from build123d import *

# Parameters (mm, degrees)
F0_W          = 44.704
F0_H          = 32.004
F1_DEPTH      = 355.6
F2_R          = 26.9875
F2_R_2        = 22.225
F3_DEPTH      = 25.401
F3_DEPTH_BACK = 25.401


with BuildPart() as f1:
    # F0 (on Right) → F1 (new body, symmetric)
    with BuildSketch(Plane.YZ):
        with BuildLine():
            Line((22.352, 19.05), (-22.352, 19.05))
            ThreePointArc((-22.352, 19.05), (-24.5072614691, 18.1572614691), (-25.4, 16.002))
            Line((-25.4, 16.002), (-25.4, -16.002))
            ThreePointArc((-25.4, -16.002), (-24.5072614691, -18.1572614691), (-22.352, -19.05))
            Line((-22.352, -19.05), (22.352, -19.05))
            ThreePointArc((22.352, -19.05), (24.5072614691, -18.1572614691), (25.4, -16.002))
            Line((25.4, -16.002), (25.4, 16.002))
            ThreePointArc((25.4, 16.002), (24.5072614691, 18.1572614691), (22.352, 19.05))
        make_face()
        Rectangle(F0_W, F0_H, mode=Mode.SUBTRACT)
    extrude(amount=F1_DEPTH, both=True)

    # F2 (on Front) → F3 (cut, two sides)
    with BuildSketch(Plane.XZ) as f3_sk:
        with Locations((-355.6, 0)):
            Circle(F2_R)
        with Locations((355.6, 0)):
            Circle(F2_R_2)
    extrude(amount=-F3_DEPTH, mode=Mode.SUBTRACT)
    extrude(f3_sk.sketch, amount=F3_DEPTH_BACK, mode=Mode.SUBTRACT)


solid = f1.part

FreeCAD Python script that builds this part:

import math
import FreeCAD as App
import Part
import Sketcher
from FreeCAD import Vector
Q = App.Units.Quantity


def add_polygon(sketch, points):
    """Adds a closed chain of lines whose ends are joined by coincident constraints."""
    first, n = sketch.GeometryCount, len(points)
    for a, b in zip(points, points[1:] + points[:1]):
        sketch.addGeometry(Part.LineSegment(App.Vector(*a, 0), App.Vector(*b, 0)), False)
    for i in range(n):
        sketch.addConstraint(Sketcher.Constraint("Coincident", first + i, 2, first + (i + 1) % n, 1))

doc = App.newDocument("Part")
params = doc.addObject("Spreadsheet::Sheet", "Params")
for row, (alias, value) in enumerate([
    ("sketch1_radius", "0.12 in"),
    ("sketch1_height", "1.26 in"),
    ("pad1_length", "28 in"),
    ("sketch2_diameter", "1.75 in"),
    ("sketch2_diameter2", "2.125 in"),
], start=1):
    params.set(f"A{row}", alias)
    params.set(f"B{row}", "=" + value)
    params.setAlias(f"B{row}", alias)

body = doc.addObject("PartDesign::Body", "Body")

sketch1 = body.newObject("Sketcher::SketchObject", "Sketch")
sketch1.AttachmentSupport = (doc.getObject("YZ_Plane"), [""])
sketch1.MapMode = "FlatFace"
sketch1.addGeometry(Part.LineSegment(Vector(22.4, 19.1, 0), Vector(-22.4, 19.1, 0)), False)
sketch1.addGeometry(Part.ArcOfCircle(Part.Circle(Vector(-22.4, 16, 0), Vector(0, 0, 1), 3), math.radians(90), math.radians(180)), False)
sketch1.addGeometry(Part.LineSegment(Vector(-25.4, 16, 0), Vector(-25.4, -16, 0)), False)
sketch1.addGeometry(Part.ArcOfCircle(Part.Circle(Vector(-22.4, -16, 0), Vector(0, 0, 1), 3), math.radians(180), math.radians(270)), False)
sketch1.addGeometry(Part.LineSegment(Vector(-22.4, -19.1, 0), Vector(22.4, -19.1, 0)), False)
sketch1.addGeometry(Part.ArcOfCircle(Part.Circle(Vector(22.4, -16, 0), Vector(0, 0, 1), 3), math.radians(-90), math.radians(0)), False)
sketch1.addGeometry(Part.LineSegment(Vector(25.4, -16, 0), Vector(25.4, 16, 0)), False)
sketch1.addGeometry(Part.ArcOfCircle(Part.Circle(Vector(22.4, 16, 0), Vector(0, 0, 1), 3), math.radians(0), math.radians(90)), False)
add_polygon(sketch1, [(22.4, -16), (-22.4, -16), (-22.4, 16), (22.4, 16)])
sketch1.addConstraint([
    Sketcher.Constraint("Tangent", 0, 2, 1, 1),
    Sketcher.Constraint("Tangent", 1, 2, 2, 1),
    Sketcher.Constraint("Tangent", 2, 2, 3, 1),
    Sketcher.Constraint("Tangent", 3, 2, 4, 1),
    Sketcher.Constraint("Tangent", 4, 2, 5, 1),
    Sketcher.Constraint("Tangent", 5, 2, 6, 1),
    Sketcher.Constraint("Tangent", 6, 2, 7, 1),
    Sketcher.Constraint("Tangent", 7, 2, 0, 1),
    Sketcher.Constraint("Horizontal", 0),
    Sketcher.Constraint("Vertical", 2),
    Sketcher.Constraint("Horizontal", 4),
    Sketcher.Constraint("Vertical", 6),
    Sketcher.Constraint("Horizontal", 8),
    Sketcher.Constraint("Vertical", 9),
    Sketcher.Constraint("Horizontal", 10),
    Sketcher.Constraint("Vertical", 11),
    Sketcher.Constraint("Coincident", 8, 2, 3, 3),
    Sketcher.Constraint("Coincident", 9, 2, 1, 3),
    Sketcher.Constraint("Coincident", 10, 2, 7, 3),
    Sketcher.Constraint("Equal", 3, 5),
    Sketcher.Constraint("Symmetric", 1, 3, 5, 3, -1, 1),
    Sketcher.Constraint("Radius", 1, Q("0.12 in")),
    Sketcher.Constraint("DistanceX", 1, 2, -1, 1, Q("1 in")),
    Sketcher.Constraint("DistanceY", 2, 2, 2, 1, Q("1.26 in")),
])
sketch1.setExpression("Constraints[25]", "Params.sketch1_radius")
sketch1.setExpression("Constraints[27]", "Params.sketch1_height")
pad1 = body.newObject("PartDesign::Pad", "Pad")
pad1.Profile = sketch1
pad1.setExpression("Length", "Params.pad1_length")
pad1.Midplane = True

sketch2 = body.newObject("Sketcher::SketchObject", "Sketch001")
sketch2.AttachmentSupport = (doc.getObject("XZ_Plane"), [""])
sketch2.MapMode = "FlatFace"
sketch2.addGeometry([
    Part.Circle(Vector(-356, 0, 0), Vector(0, 0, 1), 27),
    Part.Circle(Vector(356, 0, 0), Vector(0, 0, 1), 22),
], False)
sketch2.addConstraint([
    Sketcher.Constraint("Symmetric", 0, 3, 1, 3, -1, 1),
    Sketcher.Constraint("PointOnObject", 0, 3, -1),
    Sketcher.Constraint("Diameter", 1, Q("1.75 in")),
    Sketcher.Constraint("Diameter", 0, Q("2.125 in")),
    Sketcher.Constraint("DistanceX", 0, 3, -1, 1, Q("14 in")),
])
sketch2.setExpression("Constraints[2]", "Params.sketch2_diameter")
sketch2.setExpression("Constraints[3]", "Params.sketch2_diameter2")
pocket1 = body.newObject("PartDesign::Pocket", "Pocket")
pocket1.Profile = sketch2
pocket1.Type = "ThroughAll"
pocket1.Midplane = True

doc.recompute()
